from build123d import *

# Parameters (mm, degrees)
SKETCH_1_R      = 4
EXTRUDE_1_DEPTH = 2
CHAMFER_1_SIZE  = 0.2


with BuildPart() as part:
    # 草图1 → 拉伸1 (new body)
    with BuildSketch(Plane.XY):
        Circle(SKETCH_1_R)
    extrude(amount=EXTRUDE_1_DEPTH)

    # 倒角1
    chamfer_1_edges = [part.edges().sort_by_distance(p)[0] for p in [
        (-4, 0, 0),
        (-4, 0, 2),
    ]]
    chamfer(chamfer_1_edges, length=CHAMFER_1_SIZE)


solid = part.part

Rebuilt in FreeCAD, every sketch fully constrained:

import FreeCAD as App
import Part
import Sketcher

V = App.Vector


def edges_at(feature, points):
    """Names of the edges that pass closest to the given points."""
    edges = feature.Shape.Edges
    near = lambda p: min(range(len(edges)), key=lambda i: edges[i].distToShape(Part.Vertex(*p))[0])
    return sorted({f"Edge{near(p) + 1}" for p in points})

doc = App.newDocument("Part")
body = doc.addObject("PartDesign::Body", "Body")

# Sketch on XY plane
sketch1 = body.newObject("Sketcher::SketchObject", "Sketch")
sketch1.AttachmentSupport = (doc.getObject("XY_Plane"), [""])
sketch1.MapMode = "FlatFace"
sketch1.addGeometry(Part.Circle(V(0, 0, 0), V(0, 0, 1), 4), False)
sketch1.addConstraint(Sketcher.Constraint("Coincident", 0, 3, -1, 1))
sketch1.addConstraint(Sketcher.Constraint("Diameter", 0, 8.0))
pad1 = body.newObject("PartDesign::Pad", "Pad")
pad1.Profile = sketch1
pad1.Length = 2
doc.recompute()

chamfer = body.newObject("PartDesign::Chamfer", "Chamfer")
chamfer.Base = (pad1, edges_at(pad1, [(-4, 0, 0), (-4, 0, 2)]))
chamfer.Size = 0.2

doc.recompute()
